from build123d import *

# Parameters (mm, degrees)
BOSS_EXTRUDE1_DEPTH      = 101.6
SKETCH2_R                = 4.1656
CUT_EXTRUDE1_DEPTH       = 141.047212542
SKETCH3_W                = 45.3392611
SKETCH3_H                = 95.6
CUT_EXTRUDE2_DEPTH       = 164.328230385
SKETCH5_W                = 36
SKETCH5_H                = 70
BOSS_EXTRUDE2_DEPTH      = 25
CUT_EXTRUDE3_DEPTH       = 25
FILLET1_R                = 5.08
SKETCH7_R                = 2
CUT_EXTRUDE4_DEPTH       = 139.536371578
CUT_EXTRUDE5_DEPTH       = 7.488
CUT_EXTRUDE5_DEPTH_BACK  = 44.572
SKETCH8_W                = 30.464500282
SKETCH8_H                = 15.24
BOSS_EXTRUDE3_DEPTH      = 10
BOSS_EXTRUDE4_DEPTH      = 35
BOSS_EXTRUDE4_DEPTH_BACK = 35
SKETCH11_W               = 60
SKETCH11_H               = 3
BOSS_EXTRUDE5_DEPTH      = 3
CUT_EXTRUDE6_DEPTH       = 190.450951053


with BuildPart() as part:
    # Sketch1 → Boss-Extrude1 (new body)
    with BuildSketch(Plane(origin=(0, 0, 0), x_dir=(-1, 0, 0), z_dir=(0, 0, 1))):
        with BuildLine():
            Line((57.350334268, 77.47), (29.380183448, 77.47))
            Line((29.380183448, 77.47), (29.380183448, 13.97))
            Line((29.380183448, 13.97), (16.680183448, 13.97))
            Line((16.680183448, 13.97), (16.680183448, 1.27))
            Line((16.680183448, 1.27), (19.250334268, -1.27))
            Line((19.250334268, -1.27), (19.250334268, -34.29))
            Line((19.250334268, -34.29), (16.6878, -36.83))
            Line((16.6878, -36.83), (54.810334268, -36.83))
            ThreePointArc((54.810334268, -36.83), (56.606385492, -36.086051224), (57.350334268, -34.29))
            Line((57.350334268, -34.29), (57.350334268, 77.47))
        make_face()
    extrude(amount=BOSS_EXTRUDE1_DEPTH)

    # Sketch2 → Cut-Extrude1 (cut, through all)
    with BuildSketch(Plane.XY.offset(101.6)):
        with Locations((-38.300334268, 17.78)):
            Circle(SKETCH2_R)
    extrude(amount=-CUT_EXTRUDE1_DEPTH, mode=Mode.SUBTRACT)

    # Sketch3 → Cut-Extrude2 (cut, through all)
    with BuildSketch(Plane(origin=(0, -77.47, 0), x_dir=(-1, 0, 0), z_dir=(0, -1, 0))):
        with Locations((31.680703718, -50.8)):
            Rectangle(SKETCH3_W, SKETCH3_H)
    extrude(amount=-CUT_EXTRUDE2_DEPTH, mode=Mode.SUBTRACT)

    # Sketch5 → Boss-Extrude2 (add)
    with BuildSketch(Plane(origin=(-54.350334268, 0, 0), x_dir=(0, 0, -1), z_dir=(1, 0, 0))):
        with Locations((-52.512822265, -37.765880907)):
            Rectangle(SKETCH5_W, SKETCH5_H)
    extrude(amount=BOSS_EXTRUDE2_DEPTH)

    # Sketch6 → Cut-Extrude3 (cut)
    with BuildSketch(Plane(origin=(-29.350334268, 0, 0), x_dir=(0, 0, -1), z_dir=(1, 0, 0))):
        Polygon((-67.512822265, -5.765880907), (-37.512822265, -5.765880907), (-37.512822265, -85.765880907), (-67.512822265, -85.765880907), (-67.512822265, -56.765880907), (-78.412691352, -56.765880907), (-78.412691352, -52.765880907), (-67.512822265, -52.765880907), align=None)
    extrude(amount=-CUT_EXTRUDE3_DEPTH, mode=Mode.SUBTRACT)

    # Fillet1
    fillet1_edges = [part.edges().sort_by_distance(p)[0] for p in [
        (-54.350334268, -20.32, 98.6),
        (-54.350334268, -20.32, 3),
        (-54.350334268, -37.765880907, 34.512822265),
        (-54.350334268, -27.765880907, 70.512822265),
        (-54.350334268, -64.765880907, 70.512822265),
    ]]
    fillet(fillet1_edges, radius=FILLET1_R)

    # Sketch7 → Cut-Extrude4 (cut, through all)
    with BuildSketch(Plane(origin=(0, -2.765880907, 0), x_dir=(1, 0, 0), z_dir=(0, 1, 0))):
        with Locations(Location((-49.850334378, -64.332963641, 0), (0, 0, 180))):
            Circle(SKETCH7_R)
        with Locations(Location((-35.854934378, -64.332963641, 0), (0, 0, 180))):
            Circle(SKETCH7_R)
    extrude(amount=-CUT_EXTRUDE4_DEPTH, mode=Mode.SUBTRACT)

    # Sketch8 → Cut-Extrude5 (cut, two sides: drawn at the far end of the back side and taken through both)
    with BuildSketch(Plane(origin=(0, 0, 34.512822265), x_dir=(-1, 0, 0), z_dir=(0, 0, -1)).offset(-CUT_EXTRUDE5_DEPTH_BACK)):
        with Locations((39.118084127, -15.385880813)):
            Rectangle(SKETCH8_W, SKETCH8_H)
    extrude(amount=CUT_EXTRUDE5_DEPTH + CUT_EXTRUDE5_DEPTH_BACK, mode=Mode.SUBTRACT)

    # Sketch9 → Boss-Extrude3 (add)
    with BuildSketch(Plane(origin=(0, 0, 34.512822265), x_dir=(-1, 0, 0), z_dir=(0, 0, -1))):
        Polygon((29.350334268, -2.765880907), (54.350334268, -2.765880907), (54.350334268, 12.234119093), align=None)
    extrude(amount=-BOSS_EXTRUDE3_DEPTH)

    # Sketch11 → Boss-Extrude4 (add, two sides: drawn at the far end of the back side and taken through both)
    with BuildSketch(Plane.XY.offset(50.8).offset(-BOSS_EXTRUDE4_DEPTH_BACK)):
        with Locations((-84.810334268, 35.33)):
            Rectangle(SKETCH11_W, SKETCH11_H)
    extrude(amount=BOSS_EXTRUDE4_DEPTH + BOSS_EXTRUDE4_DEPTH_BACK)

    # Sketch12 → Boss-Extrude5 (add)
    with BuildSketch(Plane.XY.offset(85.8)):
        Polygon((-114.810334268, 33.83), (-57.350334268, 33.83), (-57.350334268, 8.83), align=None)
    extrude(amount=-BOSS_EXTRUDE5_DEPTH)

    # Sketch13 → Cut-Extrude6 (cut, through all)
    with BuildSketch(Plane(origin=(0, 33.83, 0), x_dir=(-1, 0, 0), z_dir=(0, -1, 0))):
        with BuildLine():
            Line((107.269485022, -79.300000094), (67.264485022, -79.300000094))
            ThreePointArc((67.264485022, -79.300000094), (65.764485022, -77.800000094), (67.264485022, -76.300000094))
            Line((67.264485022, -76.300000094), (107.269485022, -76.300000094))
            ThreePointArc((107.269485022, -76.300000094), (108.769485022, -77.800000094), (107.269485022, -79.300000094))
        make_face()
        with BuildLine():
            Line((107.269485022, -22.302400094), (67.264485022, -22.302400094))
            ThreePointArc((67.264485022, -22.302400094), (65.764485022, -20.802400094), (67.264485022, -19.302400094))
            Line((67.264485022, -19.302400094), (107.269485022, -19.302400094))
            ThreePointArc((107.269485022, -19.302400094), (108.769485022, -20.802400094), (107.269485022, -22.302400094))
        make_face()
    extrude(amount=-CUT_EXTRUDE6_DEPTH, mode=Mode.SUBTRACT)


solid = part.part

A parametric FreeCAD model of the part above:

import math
import FreeCAD as App
import Part
import Sketcher
from FreeCAD import Vector
Q = App.Units.Quantity


def edges_at(feature, points):
    """Names of the edges that pass closest to the given points."""
    edges = feature.Shape.Edges
    near = lambda p: min(range(len(edges)), key=lambda i: edges[i].distToShape(Part.Vertex(*p))[0])
    return sorted({f"Edge{near(p) + 1}" for p in points})


def add_polygon(sketch, points):
    """Adds a closed chain of lines whose ends are joined by coincident constraints."""
    first, n = sketch.GeometryCount, len(points)
    for a, b in zip(points, points[1:] + points[:1]):
        sketch.addGeometry(Part.LineSegment(App.Vector(*a, 0), App.Vector(*b, 0)), False)
    for i in range(n):
        sketch.addConstraint(Sketcher.Constraint("Coincident", first + i, 2, first + (i + 1) % n, 1))

doc = App.newDocument("Part")
params = doc.addObject("Spreadsheet::Sheet", "Params")
for row, (alias, value) in enumerate([
    ("sketch1_radius", "2.54 mm"),
    ("sketch1_width", "12.7 mm"),
    ("sketch1_height", "63.5 mm"),
    ("sketch1_height2", "33.02 mm"),
    ("sketch1_height3", "111.76 mm"),
    ("pad1_length", "101.6 mm"),
    ("sketch3_height", "95.6 mm"),
    ("sketch4_width", "70 mm"),
    ("sketch4_height", "36 mm"),
    ("pad2_length", "25 mm"),
    ("sketch5_width", "47 mm"),
    ("sketch5_width2", "4 mm"),
    ("sketch5_width3", "29 mm"),
    ("sketch5_height", "30 mm"),
    ("pocket3_length", "25 mm"),
    ("fillet_radius", "5.08 mm"),
    ("sketch6_diameter", "4 mm"),
    ("sketch7_height", "15.24 mm"),
    ("pocket5_length", "7.488 mm"),
    ("pocket5_length2", "44.572 mm"),
    ("sketch8_width", "25 mm"),
    ("sketch8_height", "15 mm"),
    ("pad3_length", "10 mm"),
    ("sketch9_width", "60 mm"),
    ("sketch9_height", "3 mm"),
    ("pad4_length", "35 mm"),
    ("pad4_length2", "35 mm"),
    ("sketch10_height", "25 mm"),
    ("sketch10_width", "57.46 mm"),
    ("pad5_length", "3 mm"),
    ("sketch11_radius", "1.5 mm"),
], start=1):
    params.set(f"A{row}", alias)
    params.set(f"B{row}", "=" + value)
    params.setAlias(f"B{row}", alias)

body = doc.addObject("PartDesign::Body", "Body")

# Sketch on XY plane
sketch1 = body.newObject("Sketcher::SketchObject", "Sketch")
sketch1.AttachmentSupport = (doc.getObject("XY_Plane"), [""])
sketch1.MapMode = "FlatFace"
sketch1.addGeometry(Part.LineSegment(Vector(-57.4, -77.5, 0), Vector(-29.4, -77.5, 0)), False)
sketch1.addGeometry(Part.LineSegment(Vector(-29.4, -77.5, 0), Vector(-29.4, -14, 0)), False)
sketch1.addGeometry(Part.LineSegment(Vector(-29.4, -14, 0), Vector(-16.7, -14, 0)), False)
sketch1.addGeometry(Part.LineSegment(Vector(-16.7, -14, 0), Vector(-16.7, -1.3, 0)), False)
sketch1.addGeometry(Part.LineSegment(Vector(-16.7, -1.3, 0), Vector(-19.3, 1.3, 0)), False)
sketch1.addGeometry(Part.LineSegment(Vector(-19.3, 1.3, 0), Vector(-19.3, 34.3, 0)), False)
sketch1.addGeometry(Part.LineSegment(Vector(-19.3, 34.3, 0), Vector(-16.7, 36.8, 0)), False)
sketch1.addGeometry(Part.LineSegment(Vector(-16.7, 36.8, 0), Vector(-54.8, 36.8, 0)), False)
sketch1.addGeometry(Part.ArcOfCircle(Part.Circle(Vector(-54.8, 34.3, 0), Vector(0, 0, 1), 2.5), math.radians(90), math.radians(180)), False)
sketch1.addGeometry(Part.LineSegment(Vector(-57.4, 34.3, 0), Vector(-57.4, -77.5, 0)), False)
sketch1.addConstraint(Sketcher.Constraint("Coincident", 0, 2, 1, 1))
sketch1.addConstraint(Sketcher.Constraint("Coincident", 1, 2, 2, 1))
sketch1.addConstraint(Sketcher.Constraint("Coincident", 2, 2, 3, 1))
sketch1.addConstraint(Sketcher.Constraint("Coincident", 3, 2, 4, 1))
sketch1.addConstraint(Sketcher.Constraint("Coincident", 4, 2, 5, 1))
sketch1.addConstraint(Sketcher.Constraint("Coincident", 5, 2, 6, 1))
sketch1.addConstraint(Sketcher.Constraint("Coincident", 6, 2, 7, 1))
sketch1.addConstraint(Sketcher.Constraint("Tangent", 7, 2, 8, 1))
sketch1.addConstraint(Sketcher.Constraint("Tangent", 8, 2, 9, 1))
sketch1.addConstraint(Sketcher.Constraint("Coincident", 9, 2, 0, 1))
sketch1.addConstraint(Sketcher.Constraint("Horizontal", 0))
sketch1.addConstraint(Sketcher.Constraint("Vertical", 1))
sketch1.addConstraint(Sketcher.Constraint("Horizontal", 2))
sketch1.addConstraint(Sketcher.Constraint("Vertical", 3))
sketch1.addConstraint(Sketcher.Constraint("Vertical", 5))
sketch1.addConstraint(Sketcher.Constraint("Horizontal", 7))
sketch1.addConstraint(Sketcher.Constraint("Vertical", 9))
sketch1.addConstraint(Sketcher.Constraint("Horizontal", 8, 3, 5, 2))
sketch1.addConstraint(Sketcher.Constraint("Equal", 2, 3))
sketch1.addConstraint(Sketcher.Constraint("Radius", 8, Q("2.54 mm")))
sketch1.addConstraint(Sketcher.Constraint("DistanceX", 2, 1, 2, 2, Q("12.7 mm")))
sketch1.addConstraint(Sketcher.Constraint("DistanceY", 1, 1, 1, 2, Q("63.5 mm")))
sketch1.addConstraint(Sketcher.Constraint("DistanceY", 5, 1, 5, 2, Q("33.02 mm")))
sketch1.addConstraint(Sketcher.Constraint("DistanceY", 9, 2, 9, 1, Q("111.76 mm")))
sketch1.addConstraint(Sketcher.Constraint("DistanceX", 8, 2, 5, 2, Q("38.1 mm")))
sketch1.addConstraint(Sketcher.Constraint("DistanceY", -1, 1, 8, 3, Q("34.29 mm")))
sketch1.addConstraint(Sketcher.Constraint("DistanceX", 0, 1, 0, 2, Q("27.970151 mm")))
sketch1.addConstraint(Sketcher.Constraint("DistanceX", 6, 2, -1, 1, Q("16.6878 mm")))
sketch1.addConstraint(Sketcher.Constraint("Distance", 6, Q("3.608072 mm")))
sketch1.setExpression("Constraints[19]", "Params.sketch1_radius")
sketch1.setExpression("Constraints[20]", "Params.sketch1_width")
sketch1.setExpression("Constraints[21]", "Params.sketch1_height")
sketch1.setExpression("Constraints[22]", "Params.sketch1_height2")
sketch1.setExpression("Constraints[23]", "Params.sketch1_height3")
pad1 = body.newObject("PartDesign::Pad", "Pad")
pad1.Profile = sketch1
pad1.setExpression("Length", "Params.pad1_length")

# Sketch on XY plane
sketch2 = body.newObject("Sketcher::SketchObject", "Sketch001")
sketch2.AttachmentSupport = (doc.getObject("XY_Plane"), [""])
sketch2.MapMode = "FlatFace"
sketch2.AttachmentOffset = App.Placement(Vector(0, 0, 101.6), App.Rotation())
sketch2.addGeometry(Part.Circle(Vector(-38.3, 17.8, 0), Vector(0, 0, 1), 4.2), False)
sketch2.addConstraint(Sketcher.Constraint("Diameter", 0, Q("8.3312 mm")))
sketch2.addConstraint(Sketcher.Constraint("DistanceY", -1, 1, 0, 3, Q("17.78 mm")))
sketch2.addConstraint(Sketcher.Constraint("DistanceX", 0, 3, -1, 1, Q("38.300334 mm")))
pocket1 = body.newObject("PartDesign::Pocket", "Pocket")
pocket1.Profile = sketch2
pocket1.Type = "ThroughAll"

# Sketch on XZ plane
sketch3 = body.newObject("Sketcher::SketchObject", "Sketch002")
sketch3.AttachmentSupport = (doc.getObject("XZ_Plane"), [""])
sketch3.MapMode = "FlatFace"
sketch3.AttachmentOffset = App.Placement(Vector(0, 0, 77.47), App.Rotation())
add_polygon(sketch3, [(-9, 3), (-9, 99), (-54, 99), (-54, 3)])  # lines 0-3
sketch3.addConstraint(Sketcher.Constraint("Vertical", 0))
sketch3.addConstraint(Sketcher.Constraint("Horizontal", 1))
sketch3.addConstraint(Sketcher.Constraint("Vertical", 2))
sketch3.addConstraint(Sketcher.Constraint("Horizontal", 3))
sketch3.addConstraint(Sketcher.Constraint("DistanceY", 0, 1, 0, 2, Q("95.6 mm")))
sketch3.addConstraint(Sketcher.Constraint("DistanceY", -1, 1, 2, 2, Q("3 mm")))
sketch3.addConstraint(Sketcher.Constraint("DistanceX", 1, 2, 1, 1, Q("45.339261 mm")))
sketch3.addConstraint(Sketcher.Constraint("DistanceX", 0, 2, -1, 1, Q("9.011073 mm")))
sketch3.setExpression("Constraints[8]", "Params.sketch3_height")
pocket2 = body.newObject("PartDesign::Pocket", "Pocket001")
pocket2.Profile = sketch3
pocket2.Type = "ThroughAll"

# Sketch on YZ plane
sketch4 = body.newObject("Sketcher::SketchObject", "Sketch003")
sketch4.AttachmentSupport = (doc.getObject("YZ_Plane"), [""])
sketch4.MapMode = "FlatFace"
sketch4.AttachmentOffset = App.Placement(Vector(0, 0, -54.350334), App.Rotation())
add_polygon(sketch4, [(-3, 71), (-73, 71), (-73, 35), (-3, 35)])  # lines 0-3
sketch4.addConstraint(Sketcher.Constraint("Horizontal", 0))
sketch4.addConstraint(Sketcher.Constraint("Vertical", 1))
sketch4.addConstraint(Sketcher.Constraint("Horizontal", 2))
sketch4.addConstraint(Sketcher.Constraint("Vertical", 3))
sketch4.addConstraint(Sketcher.Constraint("DistanceX", 0, 2, 0, 1, Q("70 mm")))
sketch4.addConstraint(Sketcher.Constraint("DistanceY", 1, 2, 1, 1, Q("36 mm")))
sketch4.addConstraint(Sketcher.Constraint("DistanceX", 0, 2, -1, 1, Q("72.765881 mm")))
sketch4.addConstraint(Sketcher.Constraint("DistanceY", -1, 1, 0, 2, Q("70.512822 mm")))
sketch4.setExpression("Constraints[8]", "Params.sketch4_width")
sketch4.setExpression("Constraints[9]", "Params.sketch4_height")
pad2 = body.newObject("PartDesign::Pad", "Pad001")
pad2.Profile = sketch4
pad2.setExpression("Length", "Params.pad2_length")

# Sketch on YZ plane
sketch5 = body.newObject("Sketcher::SketchObject", "Sketch004")
sketch5.AttachmentSupport = (doc.getObject("YZ_Plane"), [""])
sketch5.MapMode = "FlatFace"
sketch5.AttachmentOffset = App.Placement(Vector(0, 0, -29.350334), App.Rotation())
add_polygon(sketch5, [(-5.8, 37.5), (-5.8, 67.5), (-52.8, 67.5), (-52.8, 78.4), (-56.8, 78.4), (-56.8, 67.5), (-85.8, 67.5), (-85.8, 37.5)])  # lines 0-7
sketch5.addConstraint(Sketcher.Constraint("Vertical", 0))
sketch5.addConstraint(Sketcher.Constraint("Horizontal", 1))
sketch5.addConstraint(Sketcher.Constraint("Vertical", 2))
sketch5.addConstraint(Sketcher.Constraint("Horizontal", 3))
sketch5.addConstraint(Sketcher.Constraint("Vertical", 4))
sketch5.addConstraint(Sketcher.Constraint("Horizontal", 5))
sketch5.addConstraint(Sketcher.Constraint("Vertical", 6))
sketch5.addConstraint(Sketcher.Constraint("Horizontal", 7))
sketch5.addConstraint(Sketcher.Constraint("Horizontal", 1, 2, 4, 2))
sketch5.addConstraint(Sketcher.Constraint("DistanceX", 1, 2, 1, 1, Q("47 mm")))
sketch5.addConstraint(Sketcher.Constraint("DistanceX", 3, 2, 3, 1, Q("4 mm")))
sketch5.addConstraint(Sketcher.Constraint("DistanceX", 5, 2, 5, 1, Q("29 mm")))
sketch5.addConstraint(Sketcher.Constraint("DistanceY", 0, 1, 0, 2, Q("30 mm")))
sketch5.addConstraint(Sketcher.Constraint("DistanceY", 2, 1, 2, 2, Q("10.899869 mm")))
sketch5.addConstraint(Sketcher.Constraint("DistanceX", 0, 2, -1, 1, Q("5.765881 mm")))
sketch5.addConstraint(Sketcher.Constraint("DistanceY", -1, 1, 2, 2, Q("78.412691 mm")))
sketch5.setExpression("Constraints[17]", "Params.sketch5_width")
sketch5.setExpression("Constraints[18]", "Params.sketch5_width2")
sketch5.setExpression("Constraints[19]", "Params.sketch5_width3")
sketch5.setExpression("Constraints[20]", "Params.sketch5_height")
pocket3 = body.newObject("PartDesign::Pocket", "Pocket002")
pocket3.Profile = sketch5
pocket3.setExpression("Length", "Params.pocket3_length")
doc.recompute()

fillet = body.newObject("PartDesign::Fillet", "Fillet")
fillet.Base = (pocket3, edges_at(pocket3, [
    (-54.35, -20.32, 98.6),
    (-54.35, -20.32, 3),
    (-54.35, -37.766, 34.513),
    (-54.35, -27.766, 70.513),
    (-54.35, -64.766, 70.513),
]))
fillet.setExpression("Radius", "Params.fillet_radius")

# Sketch on XZ plane
sketch6 = body.newObject("Sketcher::SketchObject", "Sketch005")
sketch6.AttachmentSupport = (doc.getObject("XZ_Plane"), [""])
sketch6.MapMode = "FlatFace"
sketch6.AttachmentOffset = App.Placement(Vector(0, 0, 2.765881), App.Rotation())
sketch6.addGeometry(Part.Circle(Vector(-49.9, 64.3, 0), Vector(0, 0, 1), 2), False)
sketch6.addGeometry(Part.Circle(Vector(-35.9, 64.3, 0), Vector(0, 0, 1), 2), False)
sketch6.addConstraint(Sketcher.Constraint("Equal", 0, 1))
sketch6.addConstraint(Sketcher.Constraint("Horizontal", 0, 3, 1, 3))
sketch6.addConstraint(Sketcher.Constraint("Diameter", 0, Q("4 mm")))
sketch6.addConstraint(Sketcher.Constraint("DistanceX", 0, 3, 1, 3, Q("13.9954 mm")))
sketch6.addConstraint(Sketcher.Constraint("DistanceX", 0, 3, -1, 1, Q("49.850334 mm")))
sketch6.addConstraint(Sketcher.Constraint("DistanceY", -1, 1, 0, 3, Q("64.332964 mm")))
sketch6.setExpression("Constraints[2]", "Params.sketch6_diameter")
pocket4 = body.newObject("PartDesign::Pocket", "Pocket003")
pocket4.Profile = sketch6
pocket4.Type = "ThroughAll"
pocket4.Reversed = True

# Sketch on XY plane
sketch7 = body.newObject("Sketcher::SketchObject", "Sketch006")
sketch7.AttachmentSupport = (doc.getObject("XY_Plane"), [""])
sketch7.MapMode = "FlatFace"
sketch7.AttachmentOffset = App.Placement(Vector(0, 0, 34.512822), App.Rotation())
add_polygon(sketch7, [(-24, -8), (-24, -23), (-54, -23), (-54, -8)])  # lines 0-3
sketch7.addConstraint(Sketcher.Constraint("Vertical", 0))
sketch7.addConstraint(Sketcher.Constraint("Horizontal", 1))
sketch7.addConstraint(Sketcher.Constraint("Vertical", 2))
sketch7.addConstraint(Sketcher.Constraint("Horizontal", 3))
sketch7.addConstraint(Sketcher.Constraint("DistanceY", 0, 2, 0, 1, Q("15.24 mm")))
sketch7.addConstraint(Sketcher.Constraint("DistanceX", 1, 2, 1, 1, Q("30.4645 mm")))
sketch7.addConstraint(Sketcher.Constraint("DistanceY", 0, 2, -1, 1, Q("23.005881 mm")))
sketch7.addConstraint(Sketcher.Constraint("DistanceX", 0, 2, -1, 1, Q("23.885834 mm")))
sketch7.setExpression("Constraints[8]", "Params.sketch7_height")
pocket5 = body.newObject("PartDesign::Pocket", "Pocket004")
pocket5.Profile = sketch7
pocket5.Type = "TwoLengths"
pocket5.setExpression("Length", "Params.pocket5_length")
pocket5.setExpression("Length2", "Params.pocket5_length2")

# Sketch on XY plane
sketch8 = body.newObject("Sketcher::SketchObject", "Sketch007")
sketch8.AttachmentSupport = (doc.getObject("XY_Plane"), [""])
sketch8.MapMode = "FlatFace"
sketch8.AttachmentOffset = App.Placement(Vector(0, 0, 34.512822), App.Rotation())
add_polygon(sketch8, [(-29, -3), (-54, -3), (-54, 12)])  # lines 0-2
sketch8.addConstraint(Sketcher.Constraint("Horizontal", 0))
sketch8.addConstraint(Sketcher.Constraint("Vertical", 1))
sketch8.addConstraint(Sketcher.Constraint("DistanceX", 0, 2, 0, 1, Q("25 mm")))
sketch8.addConstraint(Sketcher.Constraint("DistanceY", 1, 1, 1, 2, Q("15 mm")))
sketch8.addConstraint(Sketcher.Constraint("DistanceY", 0, 2, -1, 1, Q("2.765881 mm")))
sketch8.addConstraint(Sketcher.Constraint("DistanceX", 0, 2, -1, 1, Q("54.350334 mm")))
sketch8.setExpression("Constraints[5]", "Params.sketch8_width")
sketch8.setExpression("Constraints[6]", "Params.sketch8_height")
pad3 = body.newObject("PartDesign::Pad", "Pad002")
pad3.Profile = sketch8
pad3.setExpression("Length", "Params.pad3_length")

# Sketch on XY plane
sketch9 = body.newObject("Sketcher::SketchObject", "Sketch008")
sketch9.AttachmentSupport = (doc.getObject("XY_Plane"), [""])
sketch9.MapMode = "FlatFace"
sketch9.AttachmentOffset = App.Placement(Vector(0, 0, 50.8), App.Rotation())
add_polygon(sketch9, [(-114.8, 36.8), (-114.8, 33.8), (-54.8, 33.8), (-54.8, 36.8)])  # lines 0-3
sketch9.addConstraint(Sketcher.Constraint("Vertical", 0))
sketch9.addConstraint(Sketcher.Constraint("Horizontal", 1))
sketch9.addConstraint(Sketcher.Constraint("Vertical", 2))
sketch9.addConstraint(Sketcher.Constraint("Horizontal", 3))
sketch9.addConstraint(Sketcher.Constraint("DistanceX", 1, 1, 1, 2, Q("60 mm")))
sketch9.addConstraint(Sketcher.Constraint("DistanceY", 0, 2, 0, 1, Q("3 mm")))
sketch9.addConstraint(Sketcher.Constraint("DistanceY", -1, 1, 0, 2, Q("33.83 mm")))
sketch9.addConstraint(Sketcher.Constraint("DistanceX", 0, 2, -1, 1, Q("114.810334 mm")))
sketch9.setExpression("Constraints[8]", "Params.sketch9_width")
sketch9.setExpression("Constraints[9]", "Params.sketch9_height")
pad4 = body.newObject("PartDesign::Pad", "Pad003")
pad4.Profile = sketch9
pad4.Type = "TwoLengths"
pad4.setExpression("Length", "Params.pad4_length")
pad4.setExpression("Length2", "Params.pad4_length2")

# Sketch on XY plane
sketch10 = body.newObject("Sketcher::SketchObject", "Sketch009")
sketch10.AttachmentSupport = (doc.getObject("XY_Plane"), [""])
sketch10.MapMode = "FlatFace"
sketch10.AttachmentOffset = App.Placement(Vector(0, 0, 85.8), App.Rotation())
add_polygon(sketch10, [(-57, 34), (-115, 34), (-57, 9)])  # lines 0-2
sketch10.addConstraint(Sketcher.Constraint("Horizontal", 0))
sketch10.addConstraint(Sketcher.Constraint("Vertical", 2))
sketch10.addConstraint(Sketcher.Constraint("DistanceY", 2, 1, 2, 2, Q("25 mm")))
sketch10.addConstraint(Sketcher.Constraint("DistanceX", 0, 2, 0, 1, Q("57.46 mm")))
sketch10.addConstraint(Sketcher.Constraint("DistanceY", -1, 1, 0, 2, Q("33.83 mm")))
sketch10.addConstraint(Sketcher.Constraint("DistanceX", 0, 2, -1, 1, Q("114.810334 mm")))
sketch10.setExpression("Constraints[5]", "Params.sketch10_height")
sketch10.setExpression("Constraints[6]", "Params.sketch10_width")
pad5 = body.newObject("PartDesign::Pad", "Pad004")
pad5.Profile = sketch10
pad5.setExpression("Length", "Params.pad5_length")
pad5.Reversed = True

# Sketch on XZ plane
sketch11 = body.newObject("Sketcher::SketchObject", "Sketch010")
sketch11.AttachmentSupport = (doc.getObject("XZ_Plane"), [""])
sketch11.MapMode = "FlatFace"
sketch11.AttachmentOffset = App.Placement(Vector(0, 0, -33.83), App.Rotation())
sketch11.addGeometry(Part.LineSegment(Vector(-67.3, 79.3, 0), Vector(-107.3, 79.3, 0)), False)
sketch11.addGeometry(Part.ArcOfCircle(Part.Circle(Vector(-107.3, 77.8, 0), Vector(0, 0, 1), 1.5), math.radians(90), math.radians(270)), False)
sketch11.addGeometry(Part.LineSegment(Vector(-107.3, 76.3, 0), Vector(-67.3, 76.3, 0)), False)
sketch11.addGeometry(Part.ArcOfCircle(Part.Circle(Vector(-67.3, 77.8, 0), Vector(0, 0, 1), 1.5), math.radians(-90), math.radians(90)), False)
sketch11.addGeometry(Part.LineSegment(Vector(-67.3, 22.3, 0), Vector(-107.3, 22.3, 0)), False)
sketch11.addGeometry(Part.ArcOfCircle(Part.Circle(Vector(-107.3, 20.8, 0), Vector(0, 0, 1), 1.5), math.radians(90), math.radians(270)), False)
sketch11.addGeometry(Part.LineSegment(Vector(-107.3, 19.3, 0), Vector(-67.3, 19.3, 0)), False)
sketch11.addGeometry(Part.ArcOfCircle(Part.Circle(Vector(-67.3, 20.8, 0), Vector(0, 0, 1), 1.5), math.radians(-90), math.radians(90)), False)
sketch11.addConstraint(Sketcher.Constraint("Tangent", 0, 2, 1, 1))
sketch11.addConstraint(Sketcher.Constraint("Tangent", 1, 2, 2, 1))
sketch11.addConstraint(Sketcher.Constraint("Tangent", 2, 2, 3, 1))
sketch11.addConstraint(Sketcher.Constraint("Tangent", 3, 2, 0, 1))
sketch11.addConstraint(Sketcher.Constraint("Tangent", 4, 2, 5, 1))
sketch11.addConstraint(Sketcher.Constraint("Tangent", 5, 2, 6, 1))
sketch11.addConstraint(Sketcher.Constraint("Tangent", 6, 2, 7, 1))
sketch11.addConstraint(Sketcher.Constraint("Tangent", 7, 2, 4, 1))
sketch11.addConstraint(Sketcher.Constraint("Horizontal", 0))
sketch11.addConstraint(Sketcher.Constraint("Horizontal", 2))
sketch11.addConstraint(Sketcher.Constraint("Horizontal", 4))
sketch11.addConstraint(Sketcher.Constraint("Horizontal", 6))
sketch11.addConstraint(Sketcher.Constraint("Equal", 3, 5))
sketch11.addConstraint(Sketcher.Constraint("Vertical", 1, 3, 5, 3))
sketch11.addConstraint(Sketcher.Constraint("Vertical", 3, 3, 7, 3))
sketch11.addConstraint(Sketcher.Constraint("Radius", 1, Q("1.5 mm")))
sketch11.addConstraint(Sketcher.Constraint("DistanceY", -1, 1, 1, 3, Q("77.8 mm")))
sketch11.addConstraint(Sketcher.Constraint("DistanceX", 0, 2, 0, 1, Q("40.005 mm")))
sketch11.addConstraint(Sketcher.Constraint("DistanceY", -1, 1, 5, 3, Q("20.8024 mm")))
sketch11.addConstraint(Sketcher.Constraint("DistanceX", 1, 3, -1, 1, Q("107.269485 mm")))
sketch11.setExpression("Constraints[15]", "Params.sketch11_radius")
pocket6 = body.newObject("PartDesign::Pocket", "Pocket005")
pocket6.Profile = sketch11
pocket6.Type = "ThroughAll"

doc.recompute()
